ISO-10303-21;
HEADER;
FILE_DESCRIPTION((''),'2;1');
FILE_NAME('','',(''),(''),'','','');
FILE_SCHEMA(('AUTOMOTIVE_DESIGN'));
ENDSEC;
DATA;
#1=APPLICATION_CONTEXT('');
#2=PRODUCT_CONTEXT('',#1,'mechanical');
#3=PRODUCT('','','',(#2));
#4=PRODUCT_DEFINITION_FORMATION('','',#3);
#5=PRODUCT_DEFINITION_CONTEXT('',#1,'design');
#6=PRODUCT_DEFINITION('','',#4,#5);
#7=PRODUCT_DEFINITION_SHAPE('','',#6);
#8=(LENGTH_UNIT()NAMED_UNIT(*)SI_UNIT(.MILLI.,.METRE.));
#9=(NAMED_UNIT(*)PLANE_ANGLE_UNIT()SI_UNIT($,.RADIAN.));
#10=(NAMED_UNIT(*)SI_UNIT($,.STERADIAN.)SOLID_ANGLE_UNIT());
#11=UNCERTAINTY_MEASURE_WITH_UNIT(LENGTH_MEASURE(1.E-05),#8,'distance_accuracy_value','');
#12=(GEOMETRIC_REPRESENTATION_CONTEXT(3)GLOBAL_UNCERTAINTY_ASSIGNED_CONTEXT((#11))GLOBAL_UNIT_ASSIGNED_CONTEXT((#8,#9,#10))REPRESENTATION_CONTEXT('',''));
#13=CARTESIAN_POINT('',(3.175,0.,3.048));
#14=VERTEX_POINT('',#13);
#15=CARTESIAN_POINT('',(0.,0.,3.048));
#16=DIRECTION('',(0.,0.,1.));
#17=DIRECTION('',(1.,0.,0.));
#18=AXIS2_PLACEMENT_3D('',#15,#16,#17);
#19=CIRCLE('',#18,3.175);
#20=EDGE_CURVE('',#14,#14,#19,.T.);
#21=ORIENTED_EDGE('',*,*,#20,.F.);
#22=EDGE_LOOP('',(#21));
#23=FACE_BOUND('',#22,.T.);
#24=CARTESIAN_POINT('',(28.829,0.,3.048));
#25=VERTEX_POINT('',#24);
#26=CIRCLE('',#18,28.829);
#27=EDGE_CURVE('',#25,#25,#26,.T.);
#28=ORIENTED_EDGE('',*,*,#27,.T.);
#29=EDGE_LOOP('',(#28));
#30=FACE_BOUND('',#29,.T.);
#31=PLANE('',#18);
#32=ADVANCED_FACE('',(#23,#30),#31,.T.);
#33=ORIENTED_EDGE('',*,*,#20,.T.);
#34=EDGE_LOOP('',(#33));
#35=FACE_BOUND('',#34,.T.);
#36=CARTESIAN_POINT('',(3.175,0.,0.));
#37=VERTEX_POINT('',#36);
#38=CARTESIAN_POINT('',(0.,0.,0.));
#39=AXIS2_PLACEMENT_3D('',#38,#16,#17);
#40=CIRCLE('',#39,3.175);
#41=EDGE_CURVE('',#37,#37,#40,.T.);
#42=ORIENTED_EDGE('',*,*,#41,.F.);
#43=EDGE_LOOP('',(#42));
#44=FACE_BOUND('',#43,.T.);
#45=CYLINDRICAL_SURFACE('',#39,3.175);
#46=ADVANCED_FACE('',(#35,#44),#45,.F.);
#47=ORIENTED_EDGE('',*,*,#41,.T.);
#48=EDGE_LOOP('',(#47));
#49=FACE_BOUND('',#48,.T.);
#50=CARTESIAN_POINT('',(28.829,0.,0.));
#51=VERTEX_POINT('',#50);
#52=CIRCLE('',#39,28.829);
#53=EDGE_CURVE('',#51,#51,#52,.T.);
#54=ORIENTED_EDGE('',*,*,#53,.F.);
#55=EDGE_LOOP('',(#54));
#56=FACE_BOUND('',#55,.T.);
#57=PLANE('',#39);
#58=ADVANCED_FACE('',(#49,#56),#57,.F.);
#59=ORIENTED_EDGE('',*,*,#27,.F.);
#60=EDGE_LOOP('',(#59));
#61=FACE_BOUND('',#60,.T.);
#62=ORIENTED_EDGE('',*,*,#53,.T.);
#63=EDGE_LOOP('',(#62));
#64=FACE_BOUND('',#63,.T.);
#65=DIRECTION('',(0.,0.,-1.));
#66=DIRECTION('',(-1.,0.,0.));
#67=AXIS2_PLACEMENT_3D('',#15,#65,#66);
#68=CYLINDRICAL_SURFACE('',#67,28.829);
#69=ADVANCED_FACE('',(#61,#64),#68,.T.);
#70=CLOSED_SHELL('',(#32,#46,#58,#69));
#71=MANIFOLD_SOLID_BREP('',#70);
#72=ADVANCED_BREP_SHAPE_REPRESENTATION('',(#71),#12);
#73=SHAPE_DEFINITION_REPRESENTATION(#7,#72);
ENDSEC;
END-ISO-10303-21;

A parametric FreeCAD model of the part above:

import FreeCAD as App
import Part
import Sketcher

V = App.Vector
Q = App.Units.Quantity

doc = App.newDocument("Part")
body = doc.addObject("PartDesign::Body", "Body")

# Sketch on XY plane
sketch1 = body.newObject("Sketcher::SketchObject", "Sketch")
sketch1.AttachmentSupport = (doc.getObject("XY_Plane"), [""])
sketch1.MapMode = "FlatFace"
sketch1.addGeometry(Part.Circle(V(0, 0, 0), V(0, 0, 1), 29), False)
sketch1.addConstraint([
    Sketcher.Constraint("Coincident", 0, 3, -1, 1),
    Sketcher.Constraint("Diameter", 0, Q("2.27 in")),
])
pad1 = body.newObject("PartDesign::Pad", "Pad")
pad1.Profile = sketch1
pad1.Length = Q("0.12 in")

# Sketch on XY plane
sketch2 = body.newObject("Sketcher::SketchObject", "Sketch001")
sketch2.AttachmentSupport = (doc.getObject("XY_Plane"), [""])
sketch2.MapMode = "FlatFace"
sketch2.AttachmentOffset = App.Placement(V(0, 0, 0.12 * 25.4), App.Rotation())
sketch2.addGeometry(Part.Circle(V(0, 0, 0), V(0, 0, 1), 3.2), False)
sketch2.addConstraint([
    Sketcher.Constraint("Coincident", 0, 3, -1, 1),
    Sketcher.Constraint("Diameter", 0, Q("0.25 in")),
])
pocket1 = body.newObject("PartDesign::Pocket", "Pocket")
pocket1.Profile = sketch2
pocket1.Length = Q("0.12 in")

doc.recompute()
